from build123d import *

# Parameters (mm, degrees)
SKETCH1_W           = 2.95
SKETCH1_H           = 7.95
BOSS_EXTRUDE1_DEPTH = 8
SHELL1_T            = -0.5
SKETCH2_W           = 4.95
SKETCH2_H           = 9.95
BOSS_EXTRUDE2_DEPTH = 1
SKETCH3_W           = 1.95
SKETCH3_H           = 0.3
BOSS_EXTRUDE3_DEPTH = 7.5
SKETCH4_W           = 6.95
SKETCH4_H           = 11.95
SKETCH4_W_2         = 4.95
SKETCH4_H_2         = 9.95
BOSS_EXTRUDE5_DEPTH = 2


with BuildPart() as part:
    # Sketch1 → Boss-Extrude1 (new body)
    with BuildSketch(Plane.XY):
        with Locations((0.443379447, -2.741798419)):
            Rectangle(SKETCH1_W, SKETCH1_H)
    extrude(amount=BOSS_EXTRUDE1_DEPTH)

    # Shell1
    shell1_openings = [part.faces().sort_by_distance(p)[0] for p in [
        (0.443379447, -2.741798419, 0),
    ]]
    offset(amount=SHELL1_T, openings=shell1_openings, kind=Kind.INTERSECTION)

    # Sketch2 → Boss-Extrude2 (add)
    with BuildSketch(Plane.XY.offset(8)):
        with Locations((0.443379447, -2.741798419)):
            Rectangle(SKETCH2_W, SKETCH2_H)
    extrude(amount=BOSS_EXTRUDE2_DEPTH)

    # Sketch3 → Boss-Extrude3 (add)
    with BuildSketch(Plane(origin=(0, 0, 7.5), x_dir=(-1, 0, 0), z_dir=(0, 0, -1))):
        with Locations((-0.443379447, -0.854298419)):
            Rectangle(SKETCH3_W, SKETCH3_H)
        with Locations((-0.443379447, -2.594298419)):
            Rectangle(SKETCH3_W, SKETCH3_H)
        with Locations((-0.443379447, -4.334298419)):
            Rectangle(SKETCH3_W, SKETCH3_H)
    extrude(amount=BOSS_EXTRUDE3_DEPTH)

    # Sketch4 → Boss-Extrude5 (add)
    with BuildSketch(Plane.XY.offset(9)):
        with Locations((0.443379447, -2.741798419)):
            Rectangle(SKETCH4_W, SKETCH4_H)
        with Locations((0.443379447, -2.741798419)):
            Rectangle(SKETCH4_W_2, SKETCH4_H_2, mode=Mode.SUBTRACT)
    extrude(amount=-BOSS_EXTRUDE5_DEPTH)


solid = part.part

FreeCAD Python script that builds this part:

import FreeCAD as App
import Part
import Sketcher

V = App.Vector
Q = App.Units.Quantity


def faces_at(feature, points):
    """Names of the faces that lie closest to the given points."""
    faces = feature.Shape.Faces
    near = lambda p: min(range(len(faces)), key=lambda i: faces[i].distToShape(Part.Vertex(*p))[0])
    return sorted({f"Face{near(p) + 1}" for p in points})


def add_polygon(sketch, points):
    """Adds a closed chain of lines whose ends are joined by coincident constraints."""
    first, n = sketch.GeometryCount, len(points)
    for a, b in zip(points, points[1:] + points[:1]):
        sketch.addGeometry(Part.LineSegment(App.Vector(*a, 0), App.Vector(*b, 0)), False)
    for i in range(n):
        sketch.addConstraint(Sketcher.Constraint("Coincident", first + i, 2, first + (i + 1) % n, 1))

doc = App.newDocument("Part")
params = doc.addObject("Spreadsheet::Sheet", "Params")
for row, (alias, value) in enumerate([
    ("sketch1_width", "2.95 mm"),
    ("sketch1_height", "7.95 mm"),
    ("pad1_length", "8 mm"),
    ("thickness_wall", "0.5 mm"),
    ("sketch2_width", "4.95 mm"),
    ("sketch2_height", "9.95 mm"),
    ("pad2_length", "1 mm"),
    ("sketch3_height", "0.3 mm"),
    ("sketch3_width", "1.95 mm"),
    ("pad3_length", "7.5 mm"),
    ("sketch4_width", "6.95 mm"),
    ("sketch4_height", "11.95 mm"),
    ("pad4_length", "2 mm"),
], start=1):
    params.set(f"A{row}", alias)
    params.set(f"B{row}", "=" + value)
    params.setAlias(f"B{row}", alias)

body = doc.addObject("PartDesign::Body", "Body")

# Sketch on XY plane
sketch1 = body.newObject("Sketcher::SketchObject", "Sketch")
sketch1.AttachmentSupport = (doc.getObject("XY_Plane"), [""])
sketch1.MapMode = "FlatFace"
add_polygon(sketch1, [(-1, 1.2), (-1, -6.7), (1.9, -6.7), (1.9, 1.2)])  # lines 0-3
sketch1.addConstraint([
    Sketcher.Constraint("Vertical", 0),
    Sketcher.Constraint("Horizontal", 1),
    Sketcher.Constraint("Vertical", 2),
    Sketcher.Constraint("Horizontal", 3),
    Sketcher.Constraint("DistanceX", 1, 1, 1, 2, Q("2.95 mm")),
    Sketcher.Constraint("DistanceY", 0, 2, 0, 1, Q("7.95 mm")),
    Sketcher.Constraint("DistanceY", 0, 2, -1, 1, Q("6.716798 mm")),
    Sketcher.Constraint("DistanceX", 0, 2, -1, 1, Q("1.031621 mm")),
])
sketch1.setExpression("Constraints[8]", "Params.sketch1_width")
sketch1.setExpression("Constraints[9]", "Params.sketch1_height")
pad1 = body.newObject("PartDesign::Pad", "Pad")
pad1.Profile = sketch1
pad1.setExpression("Length", "Params.pad1_length")
doc.recompute()

thickness = body.newObject("PartDesign::Thickness", "Thickness")
thickness.Base = (pad1, faces_at(pad1, [(0.443, -2.742, 0)]))
thickness.setExpression("Value", "Params.thickness_wall")
thickness.Reversed = True
thickness.Join = "Intersection"

# Sketch on XY plane
sketch2 = body.newObject("Sketcher::SketchObject", "Sketch001")
sketch2.AttachmentSupport = (doc.getObject("XY_Plane"), [""])
sketch2.MapMode = "FlatFace"
sketch2.AttachmentOffset = App.Placement(V(0, 0, 8), App.Rotation())
add_polygon(sketch2, [(-2, 2.2), (-2, -7.7), (2.9, -7.7), (2.9, 2.2)])  # lines 0-3
sketch2.addConstraint([
    Sketcher.Constraint("Vertical", 0),
    Sketcher.Constraint("Horizontal", 1),
    Sketcher.Constraint("Vertical", 2),
    Sketcher.Constraint("Horizontal", 3),
    Sketcher.Constraint("DistanceX", 1, 1, 1, 2, Q("4.95 mm")),
    Sketcher.Constraint("DistanceY", 0, 2, 0, 1, Q("9.95 mm")),
    Sketcher.Constraint("DistanceY", 0, 2, -1, 1, Q("7.716798 mm")),
    Sketcher.Constraint("DistanceX", 0, 2, -1, 1, Q("2.031621 mm")),
])
sketch2.setExpression("Constraints[8]", "Params.sketch2_width")
sketch2.setExpression("Constraints[9]", "Params.sketch2_height")
pad2 = body.newObject("PartDesign::Pad", "Pad001")
pad2.Profile = sketch2
pad2.setExpression("Length", "Params.pad2_length")

# Sketch on XY plane
sketch3 = body.newObject("Sketcher::SketchObject", "Sketch002")
sketch3.AttachmentSupport = (doc.getObject("XY_Plane"), [""])
sketch3.MapMode = "FlatFace"
sketch3.AttachmentOffset = App.Placement(V(0, 0, 7.5), App.Rotation())
add_polygon(sketch3, [(1.42, -0.7), (1.42, -1), (-0.53, -1), (-0.53, -0.7)])  # lines 0-3
add_polygon(sketch3, [(1.42, -2.44), (1.42, -2.74), (-0.53, -2.74), (-0.53, -2.44)])  # lines 4-7
add_polygon(sketch3, [(1.42, -4.18), (1.42, -4.48), (-0.53, -4.48), (-0.53, -4.18)])  # lines 8-11
sketch3.addConstraint([
    Sketcher.Constraint("Vertical", 0),
    Sketcher.Constraint("Horizontal", 1),
    Sketcher.Constraint("Vertical", 2),
    Sketcher.Constraint("Horizontal", 3),
    Sketcher.Constraint("Vertical", 4),
    Sketcher.Constraint("Horizontal", 5),
    Sketcher.Constraint("Vertical", 6),
    Sketcher.Constraint("Horizontal", 7),
    Sketcher.Constraint("Vertical", 8),
    Sketcher.Constraint("Horizontal", 9),
    Sketcher.Constraint("Vertical", 10),
    Sketcher.Constraint("Horizontal", 11),
    Sketcher.Constraint("Vertical", 3, 2, 4, 2),
    Sketcher.Constraint("Vertical", 2, 2, 5, 2),
    Sketcher.Constraint("Vertical", 7, 2, 8, 2),
    Sketcher.Constraint("Vertical", 6, 2, 9, 2),
    Sketcher.Constraint("Equal", 2, 4),
    Sketcher.Constraint("Equal", 6, 8),
    Sketcher.Constraint("DistanceY", 0, 2, 0, 1, Q("0.3 mm")),
    Sketcher.Constraint("DistanceX", 1, 2, 1, 1, Q("1.95 mm")),
    Sketcher.Constraint("DistanceY", 4, 2, 0, 2, Q("1.74 mm")),
    Sketcher.Constraint("DistanceY", 8, 2, 4, 2, Q("1.74 mm")),
    Sketcher.Constraint("DistanceY", 0, 2, -1, 1, Q("1.004298 mm")),
    Sketcher.Constraint("DistanceX", -1, 1, 0, 2, Q("1.418379 mm")),
])
sketch3.setExpression("Constraints[30]", "Params.sketch3_height")
sketch3.setExpression("Constraints[31]", "Params.sketch3_width")
pad3 = body.newObject("PartDesign::Pad", "Pad002")
pad3.Profile = sketch3
pad3.setExpression("Length", "Params.pad3_length")
pad3.Reversed = True

# Sketch on XY plane
sketch4 = body.newObject("Sketcher::SketchObject", "Sketch003")
sketch4.AttachmentSupport = (doc.getObject("XY_Plane"), [""])
sketch4.MapMode = "FlatFace"
sketch4.AttachmentOffset = App.Placement(V(0, 0, 9), App.Rotation())
add_polygon(sketch4, [(-3, 3.2), (-3, -8.7), (3.9, -8.7), (3.9, 3.2)])  # lines 0-3
add_polygon(sketch4, [(2.9, -7.7), (-2, -7.7), (-2, 2.2), (2.9, 2.2)])  # lines 4-7
sketch4.addConstraint([
    Sketcher.Constraint("Vertical", 0),
    Sketcher.Constraint("Horizontal", 1),
    Sketcher.Constraint("Vertical", 2),
    Sketcher.Constraint("Horizontal", 3),
    Sketcher.Constraint("Horizontal", 4),
    Sketcher.Constraint("Vertical", 5),
    Sketcher.Constraint("Horizontal", 6),
    Sketcher.Constraint("Vertical", 7),
    Sketcher.Constraint("DistanceX", 0, 2, 4, 2, Q("1 mm")),
    Sketcher.Constraint("DistanceY", 0, 2, 4, 2, Q("1 mm")),
    Sketcher.Constraint("DistanceY", 5, 2, 3, 2, Q("1 mm")),
    Sketcher.Constraint("DistanceX", 6, 2, 2, 2, Q("1 mm")),
    Sketcher.Constraint("DistanceX", 1, 1, 1, 2, Q("6.95 mm")),
    Sketcher.Constraint("DistanceY", 0, 2, 0, 1, Q("11.95 mm")),
    Sketcher.Constraint("DistanceY", 0, 2, -1, 1, Q("8.716798 mm")),
    Sketcher.Constraint("DistanceX", 0, 2, -1, 1, Q("3.031621 mm")),
])
sketch4.setExpression("Constraints[20]", "Params.sketch4_width")
sketch4.setExpression("Constraints[21]", "Params.sketch4_height")
pad4 = body.newObject("PartDesign::Pad", "Pad003")
pad4.Profile = sketch4
pad4.setExpression("Length", "Params.pad4_length")
pad4.Reversed = True

doc.recompute()
